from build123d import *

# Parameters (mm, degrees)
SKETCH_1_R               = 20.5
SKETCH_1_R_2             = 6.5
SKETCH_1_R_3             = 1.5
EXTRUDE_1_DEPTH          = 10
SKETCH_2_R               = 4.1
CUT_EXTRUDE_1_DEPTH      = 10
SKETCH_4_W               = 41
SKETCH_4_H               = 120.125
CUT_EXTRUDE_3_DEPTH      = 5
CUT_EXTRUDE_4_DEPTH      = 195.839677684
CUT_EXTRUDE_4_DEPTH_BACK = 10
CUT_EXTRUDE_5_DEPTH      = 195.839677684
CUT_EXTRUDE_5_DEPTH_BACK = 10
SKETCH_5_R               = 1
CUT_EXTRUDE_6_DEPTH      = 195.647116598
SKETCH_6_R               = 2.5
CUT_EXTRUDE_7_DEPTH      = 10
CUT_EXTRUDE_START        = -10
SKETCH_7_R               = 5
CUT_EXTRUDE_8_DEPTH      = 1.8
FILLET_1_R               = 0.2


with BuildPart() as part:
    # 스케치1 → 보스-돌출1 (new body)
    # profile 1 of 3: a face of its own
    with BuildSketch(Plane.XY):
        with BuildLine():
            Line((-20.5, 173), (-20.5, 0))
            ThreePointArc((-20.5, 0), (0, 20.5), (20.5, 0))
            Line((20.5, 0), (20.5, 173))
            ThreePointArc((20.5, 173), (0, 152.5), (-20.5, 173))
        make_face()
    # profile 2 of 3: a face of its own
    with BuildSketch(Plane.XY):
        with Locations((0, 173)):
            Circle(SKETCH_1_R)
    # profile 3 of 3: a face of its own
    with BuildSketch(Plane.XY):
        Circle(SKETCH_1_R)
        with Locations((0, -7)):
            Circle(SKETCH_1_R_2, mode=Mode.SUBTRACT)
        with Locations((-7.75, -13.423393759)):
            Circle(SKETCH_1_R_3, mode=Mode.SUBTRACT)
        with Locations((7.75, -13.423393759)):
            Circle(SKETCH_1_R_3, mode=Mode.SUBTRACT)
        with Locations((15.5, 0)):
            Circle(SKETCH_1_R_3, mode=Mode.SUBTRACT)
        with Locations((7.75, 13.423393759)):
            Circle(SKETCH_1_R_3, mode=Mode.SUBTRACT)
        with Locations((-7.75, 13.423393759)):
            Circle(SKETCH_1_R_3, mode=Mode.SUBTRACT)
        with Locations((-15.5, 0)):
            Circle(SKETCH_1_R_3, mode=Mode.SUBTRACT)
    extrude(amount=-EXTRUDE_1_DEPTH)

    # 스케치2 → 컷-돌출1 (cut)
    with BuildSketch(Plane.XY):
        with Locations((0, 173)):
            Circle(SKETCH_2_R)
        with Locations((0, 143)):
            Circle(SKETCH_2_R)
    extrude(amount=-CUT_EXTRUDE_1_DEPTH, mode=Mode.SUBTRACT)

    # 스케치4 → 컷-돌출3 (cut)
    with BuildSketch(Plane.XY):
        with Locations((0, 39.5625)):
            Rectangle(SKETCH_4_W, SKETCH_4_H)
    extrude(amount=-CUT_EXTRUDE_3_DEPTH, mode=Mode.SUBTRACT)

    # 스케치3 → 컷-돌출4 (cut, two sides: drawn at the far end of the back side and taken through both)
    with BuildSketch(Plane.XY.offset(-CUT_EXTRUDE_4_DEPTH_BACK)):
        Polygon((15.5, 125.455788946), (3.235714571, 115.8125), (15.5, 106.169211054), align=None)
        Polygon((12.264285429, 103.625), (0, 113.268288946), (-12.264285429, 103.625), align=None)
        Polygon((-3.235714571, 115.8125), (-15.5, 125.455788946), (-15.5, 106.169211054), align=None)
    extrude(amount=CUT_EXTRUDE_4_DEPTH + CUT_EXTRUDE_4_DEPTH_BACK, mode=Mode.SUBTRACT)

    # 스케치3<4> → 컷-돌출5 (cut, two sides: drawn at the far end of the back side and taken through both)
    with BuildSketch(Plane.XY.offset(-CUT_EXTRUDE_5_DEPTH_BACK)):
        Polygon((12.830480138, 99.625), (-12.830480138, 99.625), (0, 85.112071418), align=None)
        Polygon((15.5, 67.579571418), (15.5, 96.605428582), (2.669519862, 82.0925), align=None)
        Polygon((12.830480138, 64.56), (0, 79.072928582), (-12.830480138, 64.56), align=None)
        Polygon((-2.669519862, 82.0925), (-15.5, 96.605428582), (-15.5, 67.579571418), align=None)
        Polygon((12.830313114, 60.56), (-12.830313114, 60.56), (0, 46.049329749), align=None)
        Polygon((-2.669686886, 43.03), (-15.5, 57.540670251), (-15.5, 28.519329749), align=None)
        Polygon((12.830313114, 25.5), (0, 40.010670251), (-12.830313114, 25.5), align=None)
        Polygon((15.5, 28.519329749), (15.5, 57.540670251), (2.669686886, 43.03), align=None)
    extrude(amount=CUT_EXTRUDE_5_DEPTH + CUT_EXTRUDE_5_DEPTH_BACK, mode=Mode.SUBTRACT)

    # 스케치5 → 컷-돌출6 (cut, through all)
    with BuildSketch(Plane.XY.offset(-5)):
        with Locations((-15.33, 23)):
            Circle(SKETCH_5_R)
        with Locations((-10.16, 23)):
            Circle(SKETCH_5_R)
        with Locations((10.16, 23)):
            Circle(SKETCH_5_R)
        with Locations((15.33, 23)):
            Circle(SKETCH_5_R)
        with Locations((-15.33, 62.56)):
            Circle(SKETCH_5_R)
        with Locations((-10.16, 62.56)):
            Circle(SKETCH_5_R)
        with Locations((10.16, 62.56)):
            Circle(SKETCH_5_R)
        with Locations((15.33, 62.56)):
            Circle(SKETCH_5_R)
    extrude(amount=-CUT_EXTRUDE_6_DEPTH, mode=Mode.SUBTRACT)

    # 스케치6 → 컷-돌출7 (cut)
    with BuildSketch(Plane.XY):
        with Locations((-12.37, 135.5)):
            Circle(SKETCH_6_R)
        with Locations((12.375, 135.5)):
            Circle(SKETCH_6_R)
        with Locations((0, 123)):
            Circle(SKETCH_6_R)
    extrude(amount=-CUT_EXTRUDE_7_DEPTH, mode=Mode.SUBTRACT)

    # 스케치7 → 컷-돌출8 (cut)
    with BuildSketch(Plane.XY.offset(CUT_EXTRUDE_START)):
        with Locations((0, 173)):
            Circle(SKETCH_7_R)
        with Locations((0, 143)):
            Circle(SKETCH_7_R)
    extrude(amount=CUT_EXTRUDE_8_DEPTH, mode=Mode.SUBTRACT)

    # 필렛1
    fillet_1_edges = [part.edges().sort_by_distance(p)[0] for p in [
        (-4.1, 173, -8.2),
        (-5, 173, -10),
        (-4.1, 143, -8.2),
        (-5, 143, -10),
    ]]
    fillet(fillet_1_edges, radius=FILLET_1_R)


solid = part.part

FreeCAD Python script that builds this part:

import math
import FreeCAD as App
import Part
import Sketcher
from FreeCAD import Vector
Q = App.Units.Quantity


def edges_at(feature, points):
    """Names of the edges that pass closest to the given points."""
    edges = feature.Shape.Edges
    near = lambda p: min(range(len(edges)), key=lambda i: edges[i].distToShape(Part.Vertex(*p))[0])
    return sorted({f"Edge{near(p) + 1}" for p in points})

doc = App.newDocument("Part")
params = doc.addObject("Spreadsheet::Sheet", "Params")
for row, (alias, value) in enumerate([
    ("sketch1_diameter", "3 mm"),
    ("sketch1_diameter2", "13 mm"),
    ("sketch1_radius", "20.5 mm"),
    ("sketch1_height", "173 mm"),
    ("pad1_length", "10 mm"),
    ("sketch2_diameter", "8.2 mm"),
    ("pocket1_length", "10 mm"),
    ("sketch3_width", "41 mm"),
    ("pocket2_length", "5 mm"),
    ("sketch6_diameter", "2 mm"),
    ("sketch7_diameter", "5 mm"),
    ("pocket6_length", "10 mm"),
    ("sketch8_diameter", "10 mm"),
    ("pocket7_length", "1.8 mm"),
    ("fillet_radius", "0.2 mm"),
], start=1):
    params.set(f"A{row}", alias)
    params.set(f"B{row}", "=" + value)
    params.setAlias(f"B{row}", alias)

body = doc.addObject("PartDesign::Body", "Body")

sketch1 = body.newObject("Sketcher::SketchObject", "Sketch")
sketch1.AttachmentSupport = (doc.getObject("XY_Plane"), [""])
sketch1.MapMode = "FlatFace"
sketch1.addGeometry([
    Part.LineSegment(Vector(-20.5, 173, 0), Vector(-20.5, 0, 0)),
    Part.ArcOfCircle(Part.Circle(Vector(0, 0, 0), Vector(0, 0, 1), 20.5), math.radians(180), math.radians(360)),
    Part.LineSegment(Vector(20.5, 0, 0), Vector(20.5, 173, 0)),
    Part.ArcOfCircle(Part.Circle(Vector(0, 173, 0), Vector(0, 0, 1), 20.5), math.radians(0), math.radians(180)),
    Part.Circle(Vector(7.8, 13.4, 0), Vector(0, 0, 1), 1.5),
    Part.Circle(Vector(-7.8, -13.4, 0), Vector(0, 0, 1), 1.5),
    Part.Circle(Vector(7.8, -13.4, 0), Vector(0, 0, 1), 1.5),
    Part.Circle(Vector(0, -7, 0), Vector(0, 0, 1), 6.5),
    Part.Circle(Vector(-15.5, 0, 0), Vector(0, 0, 1), 1.5),
    Part.Circle(Vector(-7.8, 13.4, 0), Vector(0, 0, 1), 1.5),
    Part.Circle(Vector(15.5, 0, 0), Vector(0, 0, 1), 1.5),
], False)
sketch1.addConstraint([
    Sketcher.Constraint("Tangent", 0, 2, 1, 1),
    Sketcher.Constraint("Tangent", 1, 2, 2, 1),
    Sketcher.Constraint("Tangent", 2, 2, 3, 1),
    Sketcher.Constraint("Tangent", 3, 2, 0, 1),
    Sketcher.Constraint("Vertical", 0),
    Sketcher.Constraint("Vertical", 2),
    Sketcher.Constraint("Coincident", 1, 3, -1, 1),
    Sketcher.Constraint("Equal", 4, 5),
    Sketcher.Constraint("Equal", 5, 6),
    Sketcher.Constraint("Equal", 6, 8),
    Sketcher.Constraint("Equal", 8, 9),
    Sketcher.Constraint("Equal", 9, 10),
    Sketcher.Constraint("Symmetric", 4, 3, 5, 3, -1, 1),
    Sketcher.Constraint("Symmetric", 6, 3, 9, 3, -1, 1),
    Sketcher.Constraint("Symmetric", 8, 3, 10, 3, -1, 1),
    Sketcher.Constraint("Symmetric", 5, 3, 6, 3, -2),
    Sketcher.Constraint("PointOnObject", 7, 3, -2),
    Sketcher.Constraint("PointOnObject", 8, 3, -1),
    Sketcher.Constraint("Diameter", 4, Q("3 mm")),
    Sketcher.Constraint("Diameter", 7, Q("13 mm")),
    Sketcher.Constraint("Radius", 1, Q("20.5 mm")),
    Sketcher.Constraint("DistanceY", 0, 2, 0, 1, Q("173 mm")),
    Sketcher.Constraint("DistanceY", 7, 3, -1, 1, Q("7 mm")),
    Sketcher.Constraint("DistanceX", 0, 2, 8, 3, Q("5 mm")),
    Sketcher.Constraint("DistanceX", 5, 3, 4, 3, Q("15.5 mm")),
    Sketcher.Constraint("DistanceY", -1, 1, 4, 3, Q("13.423394 mm")),
])
sketch1.setExpression("Constraints[18]", "Params.sketch1_diameter")
sketch1.setExpression("Constraints[19]", "Params.sketch1_diameter2")
sketch1.setExpression("Constraints[20]", "Params.sketch1_radius")
sketch1.setExpression("Constraints[21]", "Params.sketch1_height")
pad1 = body.newObject("PartDesign::Pad", "Pad")
pad1.Profile = sketch1
pad1.setExpression("Length", "Params.pad1_length")
pad1.Reversed = True

sketch2 = body.newObject("Sketcher::SketchObject", "Sketch001")
sketch2.AttachmentSupport = (doc.getObject("XY_Plane"), [""])
sketch2.MapMode = "FlatFace"
sketch2.addGeometry([
    Part.Circle(Vector(0, 173, 0), Vector(0, 0, 1), 4.1),
    Part.Circle(Vector(0, 143, 0), Vector(0, 0, 1), 4.1),
], False)
sketch2.addConstraint([
    Sketcher.Constraint("Equal", 0, 1),
    Sketcher.Constraint("PointOnObject", 0, 3, -2),
    Sketcher.Constraint("PointOnObject", 1, 3, -2),
    Sketcher.Constraint("Diameter", 0, Q("8.2 mm")),
    Sketcher.Constraint("DistanceY", -1, 1, 0, 3, Q("173 mm")),
    Sketcher.Constraint("DistanceY", -1, 1, 1, 3, Q("143 mm")),
])
sketch2.setExpression("Constraints[3]", "Params.sketch2_diameter")
pocket1 = body.newObject("PartDesign::Pocket", "Pocket")
pocket1.Profile = sketch2
pocket1.setExpression("Length", "Params.pocket1_length")

sketch3 = body.newObject("Sketcher::SketchObject", "Sketch002")
sketch3.AttachmentSupport = (doc.getObject("XY_Plane"), [""])
sketch3.MapMode = "FlatFace"
sketch3.addGeometry([
    Part.LineSegment(Vector(-20, 100, 0), Vector(-20, -20, 0)),
    Part.LineSegment(Vector(-20, -20, 0), Vector(20, -20, 0)),
    Part.LineSegment(Vector(20, -20, 0), Vector(20, 100, 0)),
    Part.LineSegment(Vector(20, 100, 0), Vector(-20, 100, 0)),
], False)
sketch3.addConstraint([
    Sketcher.Constraint("Coincident", 0, 2, 1, 1),
    Sketcher.Constraint("Coincident", 1, 2, 2, 1),
    Sketcher.Constraint("Coincident", 2, 2, 3, 1),
    Sketcher.Constraint("Coincident", 3, 2, 0, 1),
    Sketcher.Constraint("Vertical", 0),
    Sketcher.Constraint("Horizontal", 1),
    Sketcher.Constraint("Vertical", 2),
    Sketcher.Constraint("Horizontal", 3),
    Sketcher.Constraint("DistanceX", 1, 1, 1, 2, Q("41 mm")),
    Sketcher.Constraint("DistanceX", 0, 2, -1, 1, Q("20.5 mm")),
    Sketcher.Constraint("DistanceY", 0, 2, -1, 1, Q("20.5 mm")),
    Sketcher.Constraint("DistanceY", 0, 2, 0, 1, Q("120.125 mm")),
])
sketch3.setExpression("Constraints[8]", "Params.sketch3_width")
pocket2 = body.newObject("PartDesign::Pocket", "Pocket001")
pocket2.Profile = sketch3
pocket2.setExpression("Length", "Params.pocket2_length")

sketch4 = body.newObject("Sketcher::SketchObject", "Sketch003")
sketch4.AttachmentSupport = (doc.getObject("XY_Plane"), [""])
sketch4.MapMode = "FlatFace"
sketch4.addGeometry([
    Part.LineSegment(Vector(16, 125, 0), Vector(3, 116, 0)),
    Part.LineSegment(Vector(3, 116, 0), Vector(16, 106, 0)),
    Part.LineSegment(Vector(16, 106, 0), Vector(16, 125, 0)),
    Part.LineSegment(Vector(12, 104, 0), Vector(0, 113, 0)),
    Part.LineSegment(Vector(0, 113, 0), Vector(-12, 104, 0)),
    Part.LineSegment(Vector(-12, 104, 0), Vector(12, 104, 0)),
    Part.LineSegment(Vector(-3, 116, 0), Vector(-16, 125, 0)),
    Part.LineSegment(Vector(-16, 125, 0), Vector(-16, 106, 0)),
    Part.LineSegment(Vector(-16, 106, 0), Vector(-3, 116, 0)),
], False)
sketch4.addConstraint([
    Sketcher.Constraint("Coincident", 0, 2, 1, 1),
    Sketcher.Constraint("Coincident", 1, 2, 2, 1),
    Sketcher.Constraint("Coincident", 2, 2, 0, 1),
    Sketcher.Constraint("Coincident", 3, 2, 4, 1),
    Sketcher.Constraint("Coincident", 4, 2, 5, 1),
    Sketcher.Constraint("Coincident", 5, 2, 3, 1),
    Sketcher.Constraint("Coincident", 6, 2, 7, 1),
    Sketcher.Constraint("Coincident", 7, 2, 8, 1),
    Sketcher.Constraint("Coincident", 8, 2, 6, 1),
    Sketcher.Constraint("Vertical", 2),
    Sketcher.Constraint("Horizontal", 5),
    Sketcher.Constraint("Vertical", 7),
    Sketcher.Constraint("Symmetric", 2, 2, 6, 2, -2),
    Sketcher.Constraint("Symmetric", 0, 2, 8, 2, -2),
    Sketcher.Constraint("PointOnObject", 3, 2, -2),
    Sketcher.Constraint("Parallel", 1, 3),
    Sketcher.Constraint("Parallel", 0, 4),
    Sketcher.Constraint("Parallel", 3, 6),
    Sketcher.Constraint("Parallel", 4, 8),
    Sketcher.Constraint("Equal", 1, 3),
    Sketcher.Constraint("DistanceX", 6, 2, 2, 2, Q("31 mm")),
    Sketcher.Constraint("DistanceY", -1, 1, 4, 2, Q("103.625 mm")),
    Sketcher.Constraint("DistanceX", 5, 1, 5, 2, Q("24.528571 mm")),
    Sketcher.Constraint("DistanceY", -1, 1, 0, 2, Q("115.8125 mm")),
    Sketcher.Constraint("DistanceY", 2, 1, 2, 2, Q("19.286578 mm")),
])
pocket3 = body.newObject("PartDesign::Pocket", "Pocket002")
pocket3.Profile = sketch4
pocket3.Type = "ThroughAll"
pocket3.Midplane = True

sketch5 = body.newObject("Sketcher::SketchObject", "Sketch004")
sketch5.AttachmentSupport = (doc.getObject("XY_Plane"), [""])
sketch5.MapMode = "FlatFace"
sketch5.addGeometry([
    Part.LineSegment(Vector(13, 100, 0), Vector(-13, 100, 0)),
    Part.LineSegment(Vector(-13, 100, 0), Vector(0, 85, 0)),
    Part.LineSegment(Vector(0, 85, 0), Vector(13, 100, 0)),
    Part.LineSegment(Vector(16, 68, 0), Vector(16, 97, 0)),
    Part.LineSegment(Vector(16, 97, 0), Vector(3, 82, 0)),
    Part.LineSegment(Vector(3, 82, 0), Vector(16, 68, 0)),
    Part.LineSegment(Vector(13, 65, 0), Vector(0, 79, 0)),
    Part.LineSegment(Vector(0, 79, 0), Vector(-13, 65, 0)),
    Part.LineSegment(Vector(-13, 65, 0), Vector(13, 65, 0)),
    Part.LineSegment(Vector(-3, 82, 0), Vector(-16, 97, 0)),
    Part.LineSegment(Vector(-16, 97, 0), Vector(-16, 68, 0)),
    Part.LineSegment(Vector(-16, 68, 0), Vector(-3, 82, 0)),
    Part.LineSegment(Vector(13, 61, 0), Vector(-13, 61, 0)),
    Part.LineSegment(Vector(-13, 61, 0), Vector(0, 46, 0)),
    Part.LineSegment(Vector(0, 46, 0), Vector(13, 61, 0)),
    Part.LineSegment(Vector(-3, 43, 0), Vector(-16, 58, 0)),
    Part.LineSegment(Vector(-16, 58, 0), Vector(-16, 29, 0)),
    Part.LineSegment(Vector(-16, 29, 0), Vector(-3, 43, 0)),
    Part.LineSegment(Vector(13, 26, 0), Vector(0, 40, 0)),
    Part.LineSegment(Vector(0, 40, 0), Vector(-13, 26, 0)),
    Part.LineSegment(Vector(-13, 26, 0), Vector(13, 26, 0)),
    Part.LineSegment(Vector(16, 29, 0), Vector(16, 58, 0)),
    Part.LineSegment(Vector(16, 58, 0), Vector(3, 43, 0)),
    Part.LineSegment(Vector(3, 43, 0), Vector(16, 29, 0)),
], False)
sketch5.addConstraint([
    Sketcher.Constraint("Coincident", 0, 2, 1, 1),
    Sketcher.Constraint("Coincident", 1, 2, 2, 1),
    Sketcher.Constraint("Coincident", 2, 2, 0, 1),
    Sketcher.Constraint("Coincident", 3, 2, 4, 1),
    Sketcher.Constraint("Coincident", 4, 2, 5, 1),
    Sketcher.Constraint("Coincident", 5, 2, 3, 1),
    Sketcher.Constraint("Coincident", 6, 2, 7, 1),
    Sketcher.Constraint("Coincident", 7, 2, 8, 1),
    Sketcher.Constraint("Coincident", 8, 2, 6, 1),
    Sketcher.Constraint("Coincident", 9, 2, 10, 1),
    Sketcher.Constraint("Coincident", 10, 2, 11, 1),
    Sketcher.Constraint("Coincident", 11, 2, 9, 1),
    Sketcher.Constraint("Coincident", 12, 2, 13, 1),
    Sketcher.Constraint("Coincident", 13, 2, 14, 1),
    Sketcher.Constraint("Coincident", 14, 2, 12, 1),
    Sketcher.Constraint("Coincident", 15, 2, 16, 1),
    Sketcher.Constraint("Coincident", 16, 2, 17, 1),
    Sketcher.Constraint("Coincident", 17, 2, 15, 1),
    Sketcher.Constraint("Coincident", 18, 2, 19, 1),
    Sketcher.Constraint("Coincident", 19, 2, 20, 1),
    Sketcher.Constraint("Coincident", 20, 2, 18, 1),
    Sketcher.Constraint("Coincident", 21, 2, 22, 1),
    Sketcher.Constraint("Coincident", 22, 2, 23, 1),
    Sketcher.Constraint("Coincident", 23, 2, 21, 1),
    Sketcher.Constraint("Horizontal", 0),
    Sketcher.Constraint("Vertical", 3),
    Sketcher.Constraint("Horizontal", 8),
    Sketcher.Constraint("Vertical", 10),
    Sketcher.Constraint("Horizontal", 12),
    Sketcher.Constraint("Vertical", 16),
    Sketcher.Constraint("Horizontal", 20),
    Sketcher.Constraint("Vertical", 21),
    Sketcher.Constraint("Symmetric", 3, 2, 9, 2, -2),
    Sketcher.Constraint("Symmetric", 4, 2, 11, 2, -2),
    Sketcher.Constraint("Symmetric", 15, 2, 21, 2, -2),
    Sketcher.Constraint("Symmetric", 17, 2, 22, 2, -2),
    Sketcher.Constraint("PointOnObject", 1, 2, -2),
    Sketcher.Constraint("PointOnObject", 6, 2, -2),
    Sketcher.Constraint("PointOnObject", 13, 2, -2),
    Sketcher.Constraint("PointOnObject", 18, 2, -2),
    Sketcher.Constraint("Parallel", 2, 4),
    Sketcher.Constraint("Parallel", 1, 5),
    Sketcher.Constraint("Parallel", 5, 6),
    Sketcher.Constraint("Parallel", 4, 7),
    Sketcher.Constraint("Parallel", 6, 9),
    Sketcher.Constraint("Parallel", 7, 11),
    Sketcher.Constraint("Parallel", 13, 15),
    Sketcher.Constraint("Parallel", 14, 17),
    Sketcher.Constraint("Parallel", 15, 18),
    Sketcher.Constraint("Parallel", 17, 19),
    Sketcher.Constraint("Parallel", 19, 22),
    Sketcher.Constraint("Parallel", 18, 23),
    Sketcher.Constraint("Vertical", 0, 2, 7, 2),
    Sketcher.Constraint("Vertical", 10, 2, 15, 2),
    Sketcher.Constraint("Vertical", 12, 2, 19, 2),
    Sketcher.Constraint("Equal", 2, 4),
    Sketcher.Constraint("Equal", 14, 15),
    Sketcher.Constraint("DistanceY", 12, 2, 7, 2, Q("4 mm")),
    Sketcher.Constraint("DistanceX", -1, 1, 3, 2, Q("15.5 mm")),
    Sketcher.Constraint("DistanceY", -1, 1, 19, 2, Q("25.5 mm")),
    Sketcher.Constraint("DistanceY", -1, 1, 7, 2, Q("64.56 mm")),
    Sketcher.Constraint("DistanceY", -1, 1, 17, 2, Q("43.03 mm")),
    Sketcher.Constraint("DistanceY", -1, 1, 0, 2, Q("99.625 mm")),
    Sketcher.Constraint("DistanceX", 0, 2, 0, 1, Q("25.66096 mm")),
    Sketcher.Constraint("DistanceY", 16, 2, 16, 1, Q("29.021341 mm")),
    Sketcher.Constraint("DistanceY", -1, 1, 4, 2, Q("82.0925 mm")),
    Sketcher.Constraint("DistanceY", 15, 2, 10, 2, Q("10.038901 mm")),
    Sketcher.Constraint("DistanceX", 12, 2, 12, 1, Q("25.660626 mm")),
])
pocket4 = body.newObject("PartDesign::Pocket", "Pocket003")
pocket4.Profile = sketch5
pocket4.Type = "ThroughAll"
pocket4.Midplane = True

sketch6 = body.newObject("Sketcher::SketchObject", "Sketch005")
sketch6.AttachmentSupport = (doc.getObject("XY_Plane"), [""])
sketch6.MapMode = "FlatFace"
sketch6.AttachmentOffset = App.Placement(Vector(0, 0, -5), App.Rotation())
sketch6.addGeometry([
    Part.Circle(Vector(-15.3, 23, 0), Vector(0, 0, 1), 1),
    Part.Circle(Vector(-10.2, 23, 0), Vector(0, 0, 1), 1),
    Part.Circle(Vector(10.2, 23, 0), Vector(0, 0, 1), 1),
    Part.Circle(Vector(15.3, 23, 0), Vector(0, 0, 1), 1),
    Part.Circle(Vector(-15.3, 62.6, 0), Vector(0, 0, 1), 1),
    Part.Circle(Vector(-10.2, 62.6, 0), Vector(0, 0, 1), 1),
    Part.Circle(Vector(10.2, 62.6, 0), Vector(0, 0, 1), 1),
    Part.Circle(Vector(15.3, 62.6, 0), Vector(0, 0, 1), 1),
], False)
sketch6.addConstraint([
    Sketcher.Constraint("Equal", 0, 1),
    Sketcher.Constraint("Equal", 1, 2),
    Sketcher.Constraint("Equal", 2, 3),
    Sketcher.Constraint("Equal", 3, 4),
    Sketcher.Constraint("Equal", 4, 5),
    Sketcher.Constraint("Equal", 5, 6),
    Sketcher.Constraint("Equal", 6, 7),
    Sketcher.Constraint("Symmetric", 1, 3, 2, 3, -2),
    Sketcher.Constraint("Symmetric", 0, 3, 3, 3, -2),
    Sketcher.Constraint("Symmetric", 5, 3, 6, 3, -2),
    Sketcher.Constraint("Symmetric", 4, 3, 7, 3, -2),
    Sketcher.Constraint("Horizontal", 0, 3, 1, 3),
    Sketcher.Constraint("Horizontal", 4, 3, 5, 3),
    Sketcher.Constraint("Vertical", 0, 3, 4, 3),
    Sketcher.Constraint("Vertical", 1, 3, 5, 3),
    Sketcher.Constraint("Diameter", 0, Q("2 mm")),
    Sketcher.Constraint("DistanceY", -1, 1, 0, 3, Q("23 mm")),
    Sketcher.Constraint("DistanceX", 0, 3, -1, 1, Q("15.33 mm")),
    Sketcher.Constraint("DistanceX", 1, 3, -1, 1, Q("10.16 mm")),
    Sketcher.Constraint("DistanceY", -1, 1, 4, 3, Q("62.56 mm")),
])
sketch6.setExpression("Constraints[15]", "Params.sketch6_diameter")
pocket5 = body.newObject("PartDesign::Pocket", "Pocket004")
pocket5.Profile = sketch6
pocket5.Type = "ThroughAll"

sketch7 = body.newObject("Sketcher::SketchObject", "Sketch006")
sketch7.AttachmentSupport = (doc.getObject("XY_Plane"), [""])
sketch7.MapMode = "FlatFace"
sketch7.addGeometry([
    Part.Circle(Vector(-12.4, 135.5, 0), Vector(0, 0, 1), 2.5),
    Part.Circle(Vector(12.4, 135.5, 0), Vector(0, 0, 1), 2.5),
    Part.Circle(Vector(0, 123, 0), Vector(0, 0, 1), 2.5),
], False)
sketch7.addConstraint([
    Sketcher.Constraint("Equal", 0, 1),
    Sketcher.Constraint("Equal", 1, 2),
    Sketcher.Constraint("PointOnObject", 2, 3, -2),
    Sketcher.Constraint("Horizontal", 0, 3, 1, 3),
    Sketcher.Constraint("Diameter", 0, Q("5 mm")),
    Sketcher.Constraint("DistanceY", -1, 1, 2, 3, Q("123 mm")),
    Sketcher.Constraint("DistanceY", -1, 1, 0, 3, Q("135.5 mm")),
    Sketcher.Constraint("DistanceX", 0, 3, -1, 1, Q("12.37 mm")),
    Sketcher.Constraint("DistanceX", -1, 1, 1, 3, Q("12.375 mm")),
])
sketch7.setExpression("Constraints[4]", "Params.sketch7_diameter")
pocket6 = body.newObject("PartDesign::Pocket", "Pocket005")
pocket6.Profile = sketch7
pocket6.setExpression("Length", "Params.pocket6_length")

sketch8 = body.newObject("Sketcher::SketchObject", "Sketch007")
sketch8.AttachmentSupport = (doc.getObject("XY_Plane"), [""])
sketch8.MapMode = "FlatFace"
sketch8.AttachmentOffset = App.Placement(Vector(0, 0, -10), App.Rotation())
sketch8.addGeometry([
    Part.Circle(Vector(0, 173, 0), Vector(0, 0, 1), 5),
    Part.Circle(Vector(0, 143, 0), Vector(0, 0, 1), 5),
], False)
sketch8.addConstraint([
    Sketcher.Constraint("Equal", 0, 1),
    Sketcher.Constraint("PointOnObject", 0, 3, -2),
    Sketcher.Constraint("PointOnObject", 1, 3, -2),
    Sketcher.Constraint("Diameter", 0, Q("10 mm")),
    Sketcher.Constraint("DistanceY", -1, 1, 0, 3, Q("173 mm")),
    Sketcher.Constraint("DistanceY", -1, 1, 1, 3, Q("143 mm")),
])
sketch8.setExpression("Constraints[3]", "Params.sketch8_diameter")
pocket7 = body.newObject("PartDesign::Pocket", "Pocket006")
pocket7.Profile = sketch8
pocket7.setExpression("Length", "Params.pocket7_length")
pocket7.Reversed = True
doc.recompute()

fillet = body.newObject("PartDesign::Fillet", "Fillet")
fillet.Base = (pocket7, edges_at(pocket7, [
    (-4.1, 173, -8.2),
    (-5, 173, -10),
    (-4.1, 143, -8.2),
    (-5, 143, -10),
]))
fillet.setExpression("Radius", "Params.fillet_radius")

doc.recompute()
